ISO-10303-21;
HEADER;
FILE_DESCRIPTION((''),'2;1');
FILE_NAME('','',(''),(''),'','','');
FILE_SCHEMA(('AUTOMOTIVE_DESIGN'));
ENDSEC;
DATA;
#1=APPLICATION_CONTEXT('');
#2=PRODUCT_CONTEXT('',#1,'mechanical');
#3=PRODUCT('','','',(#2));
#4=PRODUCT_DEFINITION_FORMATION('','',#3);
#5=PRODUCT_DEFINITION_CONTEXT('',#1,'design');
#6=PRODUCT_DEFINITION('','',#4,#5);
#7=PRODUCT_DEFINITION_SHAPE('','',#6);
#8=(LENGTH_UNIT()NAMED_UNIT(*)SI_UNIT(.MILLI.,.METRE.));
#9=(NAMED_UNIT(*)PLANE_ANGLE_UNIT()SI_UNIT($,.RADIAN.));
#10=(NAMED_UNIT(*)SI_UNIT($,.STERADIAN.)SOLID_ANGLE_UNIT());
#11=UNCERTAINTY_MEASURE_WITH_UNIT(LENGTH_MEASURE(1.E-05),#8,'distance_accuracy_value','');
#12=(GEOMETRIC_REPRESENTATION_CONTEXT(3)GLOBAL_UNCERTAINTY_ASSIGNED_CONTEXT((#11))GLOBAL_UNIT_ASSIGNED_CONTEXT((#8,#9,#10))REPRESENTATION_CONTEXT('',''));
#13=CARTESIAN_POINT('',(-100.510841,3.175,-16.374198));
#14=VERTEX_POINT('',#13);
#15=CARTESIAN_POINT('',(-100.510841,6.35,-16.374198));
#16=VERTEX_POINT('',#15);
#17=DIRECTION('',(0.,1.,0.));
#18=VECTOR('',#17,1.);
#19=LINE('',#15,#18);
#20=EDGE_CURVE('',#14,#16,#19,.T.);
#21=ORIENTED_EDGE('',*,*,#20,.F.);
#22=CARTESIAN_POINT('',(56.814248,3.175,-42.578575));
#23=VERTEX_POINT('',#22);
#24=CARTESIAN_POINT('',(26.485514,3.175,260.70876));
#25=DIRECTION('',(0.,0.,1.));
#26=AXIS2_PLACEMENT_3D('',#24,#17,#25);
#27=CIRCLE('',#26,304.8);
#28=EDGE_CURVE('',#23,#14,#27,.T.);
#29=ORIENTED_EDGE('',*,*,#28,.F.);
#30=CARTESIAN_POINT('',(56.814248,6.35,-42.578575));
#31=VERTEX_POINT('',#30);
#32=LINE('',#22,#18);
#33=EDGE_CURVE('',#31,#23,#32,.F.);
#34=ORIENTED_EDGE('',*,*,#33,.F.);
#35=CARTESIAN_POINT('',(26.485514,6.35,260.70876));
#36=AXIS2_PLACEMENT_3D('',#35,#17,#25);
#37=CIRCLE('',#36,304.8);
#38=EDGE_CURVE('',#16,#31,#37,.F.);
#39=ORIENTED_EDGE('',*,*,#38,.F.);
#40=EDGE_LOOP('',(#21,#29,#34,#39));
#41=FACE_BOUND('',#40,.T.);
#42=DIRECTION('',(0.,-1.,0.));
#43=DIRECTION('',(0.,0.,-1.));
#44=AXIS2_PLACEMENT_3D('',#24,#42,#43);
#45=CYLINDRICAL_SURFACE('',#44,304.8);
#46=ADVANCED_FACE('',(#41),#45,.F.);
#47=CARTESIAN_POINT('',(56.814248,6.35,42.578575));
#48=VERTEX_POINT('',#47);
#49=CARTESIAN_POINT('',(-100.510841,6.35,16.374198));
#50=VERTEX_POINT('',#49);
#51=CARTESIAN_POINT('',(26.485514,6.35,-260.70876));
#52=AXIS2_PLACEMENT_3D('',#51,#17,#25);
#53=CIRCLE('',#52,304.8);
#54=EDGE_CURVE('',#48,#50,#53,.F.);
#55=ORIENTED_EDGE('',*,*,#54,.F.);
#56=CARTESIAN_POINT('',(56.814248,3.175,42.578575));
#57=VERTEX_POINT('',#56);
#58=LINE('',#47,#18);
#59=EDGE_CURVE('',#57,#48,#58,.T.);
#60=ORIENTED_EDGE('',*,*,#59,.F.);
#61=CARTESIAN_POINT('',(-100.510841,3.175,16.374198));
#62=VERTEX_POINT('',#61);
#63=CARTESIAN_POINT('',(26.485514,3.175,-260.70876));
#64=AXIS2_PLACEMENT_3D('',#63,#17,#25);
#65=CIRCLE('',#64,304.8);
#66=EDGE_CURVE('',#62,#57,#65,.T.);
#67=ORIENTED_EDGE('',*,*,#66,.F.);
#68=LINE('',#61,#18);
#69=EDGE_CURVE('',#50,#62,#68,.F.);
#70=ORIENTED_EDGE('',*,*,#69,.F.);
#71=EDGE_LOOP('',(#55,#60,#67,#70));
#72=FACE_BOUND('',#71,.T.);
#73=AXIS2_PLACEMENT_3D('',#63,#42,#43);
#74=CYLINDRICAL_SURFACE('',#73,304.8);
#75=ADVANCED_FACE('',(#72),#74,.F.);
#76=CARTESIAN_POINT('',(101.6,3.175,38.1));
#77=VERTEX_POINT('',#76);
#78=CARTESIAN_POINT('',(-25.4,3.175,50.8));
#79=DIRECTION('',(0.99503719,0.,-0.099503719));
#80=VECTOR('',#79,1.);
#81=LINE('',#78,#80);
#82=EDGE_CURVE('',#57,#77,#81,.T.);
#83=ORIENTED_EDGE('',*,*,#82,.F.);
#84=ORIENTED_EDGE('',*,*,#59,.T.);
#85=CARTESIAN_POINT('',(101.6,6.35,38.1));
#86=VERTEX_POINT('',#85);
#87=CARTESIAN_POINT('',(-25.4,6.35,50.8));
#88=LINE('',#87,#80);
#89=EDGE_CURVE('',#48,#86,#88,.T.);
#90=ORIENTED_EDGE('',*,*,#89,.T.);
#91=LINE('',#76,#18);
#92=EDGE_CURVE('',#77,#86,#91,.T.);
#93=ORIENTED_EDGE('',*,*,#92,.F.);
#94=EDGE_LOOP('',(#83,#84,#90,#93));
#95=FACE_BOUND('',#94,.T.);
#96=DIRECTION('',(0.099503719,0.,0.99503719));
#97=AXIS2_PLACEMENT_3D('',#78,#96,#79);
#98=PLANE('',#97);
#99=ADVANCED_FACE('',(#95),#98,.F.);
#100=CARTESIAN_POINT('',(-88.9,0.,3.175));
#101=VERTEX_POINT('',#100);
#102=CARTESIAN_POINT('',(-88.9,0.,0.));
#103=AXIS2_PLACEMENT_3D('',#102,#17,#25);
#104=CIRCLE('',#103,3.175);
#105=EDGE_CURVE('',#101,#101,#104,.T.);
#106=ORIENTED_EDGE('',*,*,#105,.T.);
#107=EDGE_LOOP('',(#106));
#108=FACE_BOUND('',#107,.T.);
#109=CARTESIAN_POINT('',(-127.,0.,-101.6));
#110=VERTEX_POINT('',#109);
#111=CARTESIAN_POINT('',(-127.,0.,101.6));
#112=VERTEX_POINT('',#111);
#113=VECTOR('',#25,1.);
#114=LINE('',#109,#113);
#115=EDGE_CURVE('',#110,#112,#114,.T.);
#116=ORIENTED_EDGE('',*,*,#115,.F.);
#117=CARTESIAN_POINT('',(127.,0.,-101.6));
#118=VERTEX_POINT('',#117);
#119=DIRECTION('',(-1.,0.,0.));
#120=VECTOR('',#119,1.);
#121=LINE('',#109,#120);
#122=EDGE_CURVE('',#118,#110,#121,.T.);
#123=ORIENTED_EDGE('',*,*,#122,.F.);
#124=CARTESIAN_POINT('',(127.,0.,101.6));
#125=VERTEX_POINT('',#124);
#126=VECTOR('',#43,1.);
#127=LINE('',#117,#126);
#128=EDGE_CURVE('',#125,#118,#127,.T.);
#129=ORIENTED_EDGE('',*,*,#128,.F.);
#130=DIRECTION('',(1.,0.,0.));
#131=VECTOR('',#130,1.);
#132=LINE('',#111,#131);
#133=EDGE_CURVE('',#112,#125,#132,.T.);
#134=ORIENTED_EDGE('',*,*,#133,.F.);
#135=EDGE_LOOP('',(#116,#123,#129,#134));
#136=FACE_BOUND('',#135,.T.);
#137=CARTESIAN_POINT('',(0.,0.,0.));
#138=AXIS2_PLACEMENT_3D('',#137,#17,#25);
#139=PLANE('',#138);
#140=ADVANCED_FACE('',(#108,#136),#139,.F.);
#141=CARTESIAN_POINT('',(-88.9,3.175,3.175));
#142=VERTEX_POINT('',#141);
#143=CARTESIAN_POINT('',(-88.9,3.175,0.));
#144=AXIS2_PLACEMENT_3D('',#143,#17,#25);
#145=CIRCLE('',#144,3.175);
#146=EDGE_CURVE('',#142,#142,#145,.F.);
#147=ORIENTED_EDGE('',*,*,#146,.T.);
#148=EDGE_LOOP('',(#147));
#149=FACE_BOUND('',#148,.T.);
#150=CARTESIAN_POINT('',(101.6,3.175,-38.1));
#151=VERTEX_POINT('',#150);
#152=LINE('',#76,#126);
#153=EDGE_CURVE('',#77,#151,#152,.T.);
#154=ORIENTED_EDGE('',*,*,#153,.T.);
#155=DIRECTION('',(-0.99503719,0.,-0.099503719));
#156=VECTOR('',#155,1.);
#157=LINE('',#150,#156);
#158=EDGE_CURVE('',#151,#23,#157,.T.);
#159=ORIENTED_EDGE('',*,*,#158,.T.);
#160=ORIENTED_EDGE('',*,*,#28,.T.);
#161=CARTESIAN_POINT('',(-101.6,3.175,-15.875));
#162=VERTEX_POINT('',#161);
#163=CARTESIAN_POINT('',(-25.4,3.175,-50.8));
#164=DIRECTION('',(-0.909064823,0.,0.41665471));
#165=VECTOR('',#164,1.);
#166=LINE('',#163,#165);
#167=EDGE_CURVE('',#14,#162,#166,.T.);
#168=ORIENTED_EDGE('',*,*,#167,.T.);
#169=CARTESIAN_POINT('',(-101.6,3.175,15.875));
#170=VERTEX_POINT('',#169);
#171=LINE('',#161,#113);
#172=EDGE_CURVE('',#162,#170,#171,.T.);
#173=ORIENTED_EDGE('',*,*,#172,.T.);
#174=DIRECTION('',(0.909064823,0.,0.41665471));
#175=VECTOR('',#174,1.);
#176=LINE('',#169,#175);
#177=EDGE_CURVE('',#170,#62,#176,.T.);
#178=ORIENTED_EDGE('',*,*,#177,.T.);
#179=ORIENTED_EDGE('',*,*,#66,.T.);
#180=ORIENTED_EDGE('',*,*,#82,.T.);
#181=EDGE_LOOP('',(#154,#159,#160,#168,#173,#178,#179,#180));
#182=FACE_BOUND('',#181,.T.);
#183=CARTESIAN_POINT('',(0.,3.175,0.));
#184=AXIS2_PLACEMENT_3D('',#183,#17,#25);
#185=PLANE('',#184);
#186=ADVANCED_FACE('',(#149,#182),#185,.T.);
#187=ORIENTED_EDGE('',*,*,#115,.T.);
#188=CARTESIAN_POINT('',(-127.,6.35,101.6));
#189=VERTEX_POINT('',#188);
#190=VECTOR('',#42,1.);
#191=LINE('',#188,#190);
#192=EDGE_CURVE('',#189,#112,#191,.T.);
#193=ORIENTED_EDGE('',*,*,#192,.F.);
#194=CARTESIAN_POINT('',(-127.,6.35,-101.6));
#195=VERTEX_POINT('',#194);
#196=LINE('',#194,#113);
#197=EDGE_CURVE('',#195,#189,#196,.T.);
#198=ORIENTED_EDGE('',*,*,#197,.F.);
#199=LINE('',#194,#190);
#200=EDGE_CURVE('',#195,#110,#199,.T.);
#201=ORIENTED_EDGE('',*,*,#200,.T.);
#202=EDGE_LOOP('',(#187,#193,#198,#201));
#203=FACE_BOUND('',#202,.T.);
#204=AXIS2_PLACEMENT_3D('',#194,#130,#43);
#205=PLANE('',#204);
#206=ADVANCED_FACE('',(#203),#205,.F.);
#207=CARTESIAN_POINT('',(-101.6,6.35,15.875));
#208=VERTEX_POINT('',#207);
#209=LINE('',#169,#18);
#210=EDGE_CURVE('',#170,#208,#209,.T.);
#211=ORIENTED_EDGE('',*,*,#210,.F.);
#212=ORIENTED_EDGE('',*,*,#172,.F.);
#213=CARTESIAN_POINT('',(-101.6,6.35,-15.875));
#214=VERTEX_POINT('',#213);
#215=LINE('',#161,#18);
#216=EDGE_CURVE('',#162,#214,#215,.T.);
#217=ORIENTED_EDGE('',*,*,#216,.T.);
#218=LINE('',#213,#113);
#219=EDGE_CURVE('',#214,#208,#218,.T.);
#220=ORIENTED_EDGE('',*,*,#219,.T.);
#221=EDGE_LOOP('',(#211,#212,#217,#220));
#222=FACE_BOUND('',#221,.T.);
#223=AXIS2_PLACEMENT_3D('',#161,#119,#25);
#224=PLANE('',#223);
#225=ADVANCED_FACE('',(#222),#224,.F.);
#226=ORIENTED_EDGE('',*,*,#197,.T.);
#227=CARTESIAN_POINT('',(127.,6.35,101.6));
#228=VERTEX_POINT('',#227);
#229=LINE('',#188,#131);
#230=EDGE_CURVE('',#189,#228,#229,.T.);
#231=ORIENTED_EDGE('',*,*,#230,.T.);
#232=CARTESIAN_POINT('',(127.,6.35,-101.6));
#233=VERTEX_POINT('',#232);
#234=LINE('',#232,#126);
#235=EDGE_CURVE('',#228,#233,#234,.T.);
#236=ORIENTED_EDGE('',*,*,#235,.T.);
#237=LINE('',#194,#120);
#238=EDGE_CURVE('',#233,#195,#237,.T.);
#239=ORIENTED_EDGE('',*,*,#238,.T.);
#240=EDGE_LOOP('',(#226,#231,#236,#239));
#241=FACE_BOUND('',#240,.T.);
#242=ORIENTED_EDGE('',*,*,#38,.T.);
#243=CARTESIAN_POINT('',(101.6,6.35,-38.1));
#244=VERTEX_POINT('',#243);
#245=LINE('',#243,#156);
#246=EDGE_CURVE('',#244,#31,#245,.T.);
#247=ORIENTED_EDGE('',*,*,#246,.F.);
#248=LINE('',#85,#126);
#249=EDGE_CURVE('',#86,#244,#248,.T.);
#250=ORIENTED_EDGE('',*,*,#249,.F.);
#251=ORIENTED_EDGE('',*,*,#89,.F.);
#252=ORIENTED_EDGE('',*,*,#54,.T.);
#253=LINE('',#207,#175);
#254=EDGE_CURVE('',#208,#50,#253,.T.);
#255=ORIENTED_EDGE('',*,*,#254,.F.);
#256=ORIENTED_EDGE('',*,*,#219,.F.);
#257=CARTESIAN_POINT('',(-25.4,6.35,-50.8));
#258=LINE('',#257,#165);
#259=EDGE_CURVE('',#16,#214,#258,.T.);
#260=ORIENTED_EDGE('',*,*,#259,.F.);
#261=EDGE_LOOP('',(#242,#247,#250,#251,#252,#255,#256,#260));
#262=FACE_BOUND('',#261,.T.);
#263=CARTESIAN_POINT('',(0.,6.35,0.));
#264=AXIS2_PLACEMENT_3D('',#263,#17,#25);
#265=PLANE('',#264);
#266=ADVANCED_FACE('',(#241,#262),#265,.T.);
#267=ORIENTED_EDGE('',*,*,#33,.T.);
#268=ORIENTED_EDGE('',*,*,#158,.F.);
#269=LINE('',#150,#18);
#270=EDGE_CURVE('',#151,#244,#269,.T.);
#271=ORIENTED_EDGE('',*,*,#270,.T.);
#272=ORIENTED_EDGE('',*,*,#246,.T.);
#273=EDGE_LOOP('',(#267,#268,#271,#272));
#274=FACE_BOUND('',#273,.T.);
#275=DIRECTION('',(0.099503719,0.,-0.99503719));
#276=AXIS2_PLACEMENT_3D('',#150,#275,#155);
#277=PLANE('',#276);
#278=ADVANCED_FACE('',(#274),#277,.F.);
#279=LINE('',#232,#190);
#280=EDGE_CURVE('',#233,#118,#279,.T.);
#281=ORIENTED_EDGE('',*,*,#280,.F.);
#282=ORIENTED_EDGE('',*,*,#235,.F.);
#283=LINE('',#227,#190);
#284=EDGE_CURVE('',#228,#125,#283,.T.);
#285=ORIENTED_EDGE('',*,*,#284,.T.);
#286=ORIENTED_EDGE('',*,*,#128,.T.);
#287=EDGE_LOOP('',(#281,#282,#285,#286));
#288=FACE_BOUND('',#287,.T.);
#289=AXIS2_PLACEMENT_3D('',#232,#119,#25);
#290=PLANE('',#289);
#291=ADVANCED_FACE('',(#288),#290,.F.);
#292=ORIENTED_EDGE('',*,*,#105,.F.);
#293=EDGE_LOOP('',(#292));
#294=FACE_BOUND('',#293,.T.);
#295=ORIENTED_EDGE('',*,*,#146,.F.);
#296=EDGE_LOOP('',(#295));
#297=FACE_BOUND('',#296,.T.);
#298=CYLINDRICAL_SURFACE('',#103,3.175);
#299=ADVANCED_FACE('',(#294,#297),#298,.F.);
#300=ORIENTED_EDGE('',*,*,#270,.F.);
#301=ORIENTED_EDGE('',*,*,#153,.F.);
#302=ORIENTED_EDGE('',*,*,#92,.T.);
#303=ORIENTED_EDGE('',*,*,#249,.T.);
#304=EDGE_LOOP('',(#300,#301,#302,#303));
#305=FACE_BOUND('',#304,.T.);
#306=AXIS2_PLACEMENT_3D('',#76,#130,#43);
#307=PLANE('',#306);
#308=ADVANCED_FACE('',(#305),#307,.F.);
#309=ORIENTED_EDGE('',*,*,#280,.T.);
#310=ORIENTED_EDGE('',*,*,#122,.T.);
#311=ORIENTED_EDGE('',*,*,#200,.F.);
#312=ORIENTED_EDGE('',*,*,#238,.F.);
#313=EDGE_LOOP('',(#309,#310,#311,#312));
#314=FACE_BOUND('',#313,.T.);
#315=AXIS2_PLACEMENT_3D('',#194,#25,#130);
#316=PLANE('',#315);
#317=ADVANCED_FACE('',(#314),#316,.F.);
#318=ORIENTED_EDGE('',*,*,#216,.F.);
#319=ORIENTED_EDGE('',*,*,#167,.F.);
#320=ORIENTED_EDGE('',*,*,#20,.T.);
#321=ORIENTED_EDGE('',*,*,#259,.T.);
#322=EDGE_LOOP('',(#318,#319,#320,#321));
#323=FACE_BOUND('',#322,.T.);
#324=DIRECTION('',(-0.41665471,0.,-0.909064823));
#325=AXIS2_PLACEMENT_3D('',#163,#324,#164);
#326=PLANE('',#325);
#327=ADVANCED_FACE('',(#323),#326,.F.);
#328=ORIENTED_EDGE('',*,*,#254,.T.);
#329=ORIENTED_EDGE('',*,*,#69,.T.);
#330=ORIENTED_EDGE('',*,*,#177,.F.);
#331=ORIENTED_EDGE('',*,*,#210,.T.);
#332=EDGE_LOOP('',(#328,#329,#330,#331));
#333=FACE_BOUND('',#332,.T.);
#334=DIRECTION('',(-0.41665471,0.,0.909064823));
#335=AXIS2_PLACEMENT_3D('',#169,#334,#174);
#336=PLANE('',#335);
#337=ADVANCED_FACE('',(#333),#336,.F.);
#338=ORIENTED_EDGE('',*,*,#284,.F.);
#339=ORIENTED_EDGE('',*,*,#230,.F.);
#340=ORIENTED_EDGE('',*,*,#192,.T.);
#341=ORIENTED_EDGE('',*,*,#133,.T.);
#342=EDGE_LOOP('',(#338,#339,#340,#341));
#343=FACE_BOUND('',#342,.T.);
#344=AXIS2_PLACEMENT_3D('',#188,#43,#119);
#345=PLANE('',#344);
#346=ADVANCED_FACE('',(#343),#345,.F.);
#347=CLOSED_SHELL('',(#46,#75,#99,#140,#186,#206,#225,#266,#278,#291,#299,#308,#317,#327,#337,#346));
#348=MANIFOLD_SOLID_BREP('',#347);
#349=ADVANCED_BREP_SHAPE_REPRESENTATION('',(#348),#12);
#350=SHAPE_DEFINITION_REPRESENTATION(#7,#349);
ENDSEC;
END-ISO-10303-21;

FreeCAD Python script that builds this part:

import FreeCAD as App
import Part
import Sketcher
from FreeCAD import Vector
Q = App.Units.Quantity


def edges_at(feature, points):
    """Names of the edges that pass closest to the given points."""
    edges = feature.Shape.Edges
    near = lambda p: min(range(len(edges)), key=lambda i: edges[i].distToShape(Part.Vertex(*p))[0])
    return sorted({f"Edge{near(p) + 1}" for p in points})


def add_polygon(sketch, points):
    """Adds a closed chain of lines whose ends are joined by coincident constraints."""
    first, n = sketch.GeometryCount, len(points)
    for a, b in zip(points, points[1:] + points[:1]):
        sketch.addGeometry(Part.LineSegment(App.Vector(*a, 0), App.Vector(*b, 0)), False)
    for i in range(n):
        sketch.addConstraint(Sketcher.Constraint("Coincident", first + i, 2, first + (i + 1) % n, 1))

doc = App.newDocument("Part")
body = doc.addObject("PartDesign::Body", "Body")

sketch1 = body.newObject("Sketcher::SketchObject", "Sketch")
sketch1.AttachmentSupport = (doc.getObject("XZ_Plane"), [""])
sketch1.MapMode = "FlatFace"
add_polygon(sketch1, [(-127, -101.6), (-127, 101.6), (127, 101.6), (127, -101.6)])
sketch1.addConstraint([
    Sketcher.Constraint("Vertical", 0),
    Sketcher.Constraint("Horizontal", 1),
    Sketcher.Constraint("Vertical", 2),
    Sketcher.Constraint("Horizontal", 3),
    Sketcher.Constraint("Symmetric", 0, 2, 2, 2, -1, 1),
    Sketcher.Constraint("DistanceX", 1, 1, 1, 2, Q("10 in")),
    Sketcher.Constraint("DistanceY", 0, 1, 0, 2, Q("8 in")),
])
pad1 = body.newObject("PartDesign::Pad", "Pad")
pad1.Profile = sketch1
pad1.Length = Q("0.25 in")
pad1.Reversed = True

sketch2 = body.newObject("Sketcher::SketchObject", "Sketch001")
sketch2.AttachmentSupport = (doc.getObject("XZ_Plane"), [""])
sketch2.MapMode = "FlatFace"
sketch2.AttachmentOffset = App.Placement(Vector(0, 0, -0.25 * 25.4), App.Rotation())
sketch2.addGeometry(Part.Circle(Vector(-88.9, 0, 0), Vector(0, 0, 1), 3.175), False)
sketch2.addConstraint([
    Sketcher.Constraint("PointOnObject", 0, 3, -1),
    Sketcher.Constraint("Diameter", 0, Q("0.25 in")),
    Sketcher.Constraint("DistanceX", 0, 3, -1, 1, Q("3.5 in")),
])
pocket1 = body.newObject("PartDesign::Pocket", "Pocket")
pocket1.Profile = sketch2
pocket1.Length = Q("0.25 in")
pocket1.Reversed = True

sketch3 = body.newObject("Sketcher::SketchObject", "Sketch002")
sketch3.AttachmentSupport = (doc.getObject("XZ_Plane"), [""])
sketch3.MapMode = "FlatFace"
sketch3.AttachmentOffset = App.Placement(Vector(0, 0, -0.25 * 25.4), App.Rotation())
add_polygon(sketch3, [(-101.6, -15.875), (-101.6, 15.875), (-25.4, 50.8), (101.6, 38.1), (101.6, -38.1), (-25.4, -50.8)])
sketch3.addConstraint([
    Sketcher.Constraint("Vertical", 0),
    Sketcher.Constraint("Vertical", 3),
    Sketcher.Constraint("Symmetric", 1, 2, 4, 2, -1),
    Sketcher.Constraint("Equal", 2, 4),
    Sketcher.Constraint("Equal", 1, 5),
    Sketcher.Constraint("DistanceY", 3, 2, 3, 1, Q("3 in")),
    Sketcher.Constraint("DistanceX", 0, 2, -1, 1, Q("4 in")),
    Sketcher.Constraint("DistanceX", 1, 2, -1, 1, Q("1 in")),
    Sketcher.Constraint("DistanceY", -1, 1, 1, 2, Q("2 in")),
    Sketcher.Constraint("DistanceX", -1, 1, 2, 2, Q("4 in")),
    Sketcher.Constraint("DistanceY", 0, 1, 0, 2, Q("1.25 in")),
])
pocket2 = body.newObject("PartDesign::Pocket", "Pocket001")
pocket2.Profile = sketch3
pocket2.Length = Q("0.125 in")
pocket2.Reversed = True
doc.recompute()

fillet = body.newObject("PartDesign::Fillet", "Fillet")
fillet.Base = (pocket2, edges_at(pocket2, [(-25.4, 4.763, -50.8), (-25.4, 4.763, 50.8)]))
fillet.Radius = Q("12 in")

doc.recompute()
